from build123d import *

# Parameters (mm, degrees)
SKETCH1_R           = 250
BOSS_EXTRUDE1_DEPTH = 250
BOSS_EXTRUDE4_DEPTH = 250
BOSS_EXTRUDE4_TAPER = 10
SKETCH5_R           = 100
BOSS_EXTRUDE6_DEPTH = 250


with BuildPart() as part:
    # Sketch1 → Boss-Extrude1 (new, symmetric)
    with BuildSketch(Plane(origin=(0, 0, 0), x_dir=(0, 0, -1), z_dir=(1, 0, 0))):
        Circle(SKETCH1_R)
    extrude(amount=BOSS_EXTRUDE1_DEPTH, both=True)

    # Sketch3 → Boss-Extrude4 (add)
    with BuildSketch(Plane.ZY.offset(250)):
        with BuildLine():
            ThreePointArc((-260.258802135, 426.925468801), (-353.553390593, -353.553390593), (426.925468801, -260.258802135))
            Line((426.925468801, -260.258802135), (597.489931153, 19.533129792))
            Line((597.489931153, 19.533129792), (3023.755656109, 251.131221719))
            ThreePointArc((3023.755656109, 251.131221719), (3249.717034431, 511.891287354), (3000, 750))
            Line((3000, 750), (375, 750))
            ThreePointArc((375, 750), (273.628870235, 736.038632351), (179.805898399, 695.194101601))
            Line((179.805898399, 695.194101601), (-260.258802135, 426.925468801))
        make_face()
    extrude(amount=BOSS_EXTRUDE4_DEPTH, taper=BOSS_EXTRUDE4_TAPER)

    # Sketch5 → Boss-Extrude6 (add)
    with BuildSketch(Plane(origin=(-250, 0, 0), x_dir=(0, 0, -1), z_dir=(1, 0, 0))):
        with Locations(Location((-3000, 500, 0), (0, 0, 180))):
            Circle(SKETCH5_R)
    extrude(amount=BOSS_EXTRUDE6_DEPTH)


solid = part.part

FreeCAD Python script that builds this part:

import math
import FreeCAD as App
import Part
import Sketcher

doc = App.newDocument("Part")
body = doc.addObject("PartDesign::Body", "Body")

# Sketch on YZ plane
sketch1 = body.newObject("Sketcher::SketchObject", "Sketch")
sketch1.AttachmentSupport = (doc.getObject("YZ_Plane"), [""])
sketch1.MapMode = "FlatFace"
sketch1.addGeometry(Part.Circle(App.Vector(0, 0, 0), App.Vector(0, 0, 1), 250), False)
sketch1.addConstraint(Sketcher.Constraint("Coincident", 0, 3, -1, 1))
sketch1.addConstraint(Sketcher.Constraint("Diameter", 0, 500.0))
pad1 = body.newObject("PartDesign::Pad", "Pad")
pad1.Profile = sketch1
pad1.Length = 500
pad1.Midplane = True

# Sketch on YZ plane
sketch2 = body.newObject("Sketcher::SketchObject", "Sketch001")
sketch2.AttachmentSupport = (doc.getObject("YZ_Plane"), [""])
sketch2.MapMode = "FlatFace"
sketch2.AttachmentOffset = App.Placement(App.Vector(0, 0, -250), App.Rotation())
sketch2.addGeometry(Part.ArcOfCircle(Part.Circle(App.Vector(0, 0, 0), App.Vector(0, 0, 1), 500), math.radians(121), math.radians(329)), False)
sketch2.addGeometry(Part.LineSegment(App.Vector(-260, 427, 0), App.Vector(20, 597, 0)), False)
sketch2.addGeometry(Part.LineSegment(App.Vector(20, 597, 0), App.Vector(251, 3024, 0)), False)
sketch2.addGeometry(Part.ArcOfCircle(Part.Circle(App.Vector(500, 3000, 0), App.Vector(0, 0, 1), 250), math.radians(0), math.radians(175)), False)
sketch2.addGeometry(Part.LineSegment(App.Vector(750, 3000, 0), App.Vector(750, 375, 0)), False)
sketch2.addGeometry(Part.ArcOfCircle(Part.Circle(App.Vector(375, 375, 0), App.Vector(0, 0, 1), 375), math.radians(-31), math.radians(0)), False)
sketch2.addGeometry(Part.LineSegment(App.Vector(695, 180, 0), App.Vector(427, -260, 0)), False)
sketch2.addConstraint(Sketcher.Constraint("Tangent", 0, 1, 1, 1))
sketch2.addConstraint(Sketcher.Constraint("Coincident", 1, 2, 2, 1))
sketch2.addConstraint(Sketcher.Constraint("Tangent", 2, 2, 3, 2))
sketch2.addConstraint(Sketcher.Constraint("Tangent", 3, 1, 4, 1))
sketch2.addConstraint(Sketcher.Constraint("Tangent", 4, 2, 5, 2))
sketch2.addConstraint(Sketcher.Constraint("Tangent", 5, 1, 6, 1))
sketch2.addConstraint(Sketcher.Constraint("Tangent", 6, 2, 0, 2))
sketch2.addConstraint(Sketcher.Constraint("Vertical", 4))
sketch2.addConstraint(Sketcher.Constraint("Coincident", 0, 3, -1, 1))
sketch2.addConstraint(Sketcher.Constraint("Radius", 0, 500.0))
sketch2.addConstraint(Sketcher.Constraint("Radius", 3, 250.0))
sketch2.addConstraint(Sketcher.Constraint("Radius", 5, 375.0))
sketch2.addConstraint(Sketcher.Constraint("DistanceY", 4, 2, 4, 1, 2625.0))
sketch2.addConstraint(Sketcher.Constraint("DistanceX", -1, 1, 3, 3, 500.0))
sketch2.addConstraint(Sketcher.Constraint("DistanceY", -1, 1, 3, 3, 3000.0))
sketch2.addConstraint(Sketcher.Constraint("Distance", 1, 327.682409))
sketch2.addConstraint(Sketcher.Constraint("DistanceX", -1, 1, 1, 2, 19.53313))
pad2 = body.newObject("PartDesign::Pad", "Pad001")
pad2.Profile = sketch2
pad2.Length = 250
pad2.Reversed = True
pad2.TaperAngle = -10

# Sketch on YZ plane
sketch3 = body.newObject("Sketcher::SketchObject", "Sketch002")
sketch3.AttachmentSupport = (doc.getObject("YZ_Plane"), [""])
sketch3.MapMode = "FlatFace"
sketch3.AttachmentOffset = App.Placement(App.Vector(0, 0, -250), App.Rotation())
sketch3.addGeometry(Part.Circle(App.Vector(500, 3000, 0), App.Vector(0, 0, 1), 100), False)
sketch3.addConstraint(Sketcher.Constraint("Diameter", 0, 200.0))
sketch3.addConstraint(Sketcher.Constraint("DistanceX", -1, 1, 0, 3, 500.0))
sketch3.addConstraint(Sketcher.Constraint("DistanceY", -1, 1, 0, 3, 3000.0))
pad3 = body.newObject("PartDesign::Pad", "Pad002")
pad3.Profile = sketch3
pad3.Length = 250

doc.recompute()
